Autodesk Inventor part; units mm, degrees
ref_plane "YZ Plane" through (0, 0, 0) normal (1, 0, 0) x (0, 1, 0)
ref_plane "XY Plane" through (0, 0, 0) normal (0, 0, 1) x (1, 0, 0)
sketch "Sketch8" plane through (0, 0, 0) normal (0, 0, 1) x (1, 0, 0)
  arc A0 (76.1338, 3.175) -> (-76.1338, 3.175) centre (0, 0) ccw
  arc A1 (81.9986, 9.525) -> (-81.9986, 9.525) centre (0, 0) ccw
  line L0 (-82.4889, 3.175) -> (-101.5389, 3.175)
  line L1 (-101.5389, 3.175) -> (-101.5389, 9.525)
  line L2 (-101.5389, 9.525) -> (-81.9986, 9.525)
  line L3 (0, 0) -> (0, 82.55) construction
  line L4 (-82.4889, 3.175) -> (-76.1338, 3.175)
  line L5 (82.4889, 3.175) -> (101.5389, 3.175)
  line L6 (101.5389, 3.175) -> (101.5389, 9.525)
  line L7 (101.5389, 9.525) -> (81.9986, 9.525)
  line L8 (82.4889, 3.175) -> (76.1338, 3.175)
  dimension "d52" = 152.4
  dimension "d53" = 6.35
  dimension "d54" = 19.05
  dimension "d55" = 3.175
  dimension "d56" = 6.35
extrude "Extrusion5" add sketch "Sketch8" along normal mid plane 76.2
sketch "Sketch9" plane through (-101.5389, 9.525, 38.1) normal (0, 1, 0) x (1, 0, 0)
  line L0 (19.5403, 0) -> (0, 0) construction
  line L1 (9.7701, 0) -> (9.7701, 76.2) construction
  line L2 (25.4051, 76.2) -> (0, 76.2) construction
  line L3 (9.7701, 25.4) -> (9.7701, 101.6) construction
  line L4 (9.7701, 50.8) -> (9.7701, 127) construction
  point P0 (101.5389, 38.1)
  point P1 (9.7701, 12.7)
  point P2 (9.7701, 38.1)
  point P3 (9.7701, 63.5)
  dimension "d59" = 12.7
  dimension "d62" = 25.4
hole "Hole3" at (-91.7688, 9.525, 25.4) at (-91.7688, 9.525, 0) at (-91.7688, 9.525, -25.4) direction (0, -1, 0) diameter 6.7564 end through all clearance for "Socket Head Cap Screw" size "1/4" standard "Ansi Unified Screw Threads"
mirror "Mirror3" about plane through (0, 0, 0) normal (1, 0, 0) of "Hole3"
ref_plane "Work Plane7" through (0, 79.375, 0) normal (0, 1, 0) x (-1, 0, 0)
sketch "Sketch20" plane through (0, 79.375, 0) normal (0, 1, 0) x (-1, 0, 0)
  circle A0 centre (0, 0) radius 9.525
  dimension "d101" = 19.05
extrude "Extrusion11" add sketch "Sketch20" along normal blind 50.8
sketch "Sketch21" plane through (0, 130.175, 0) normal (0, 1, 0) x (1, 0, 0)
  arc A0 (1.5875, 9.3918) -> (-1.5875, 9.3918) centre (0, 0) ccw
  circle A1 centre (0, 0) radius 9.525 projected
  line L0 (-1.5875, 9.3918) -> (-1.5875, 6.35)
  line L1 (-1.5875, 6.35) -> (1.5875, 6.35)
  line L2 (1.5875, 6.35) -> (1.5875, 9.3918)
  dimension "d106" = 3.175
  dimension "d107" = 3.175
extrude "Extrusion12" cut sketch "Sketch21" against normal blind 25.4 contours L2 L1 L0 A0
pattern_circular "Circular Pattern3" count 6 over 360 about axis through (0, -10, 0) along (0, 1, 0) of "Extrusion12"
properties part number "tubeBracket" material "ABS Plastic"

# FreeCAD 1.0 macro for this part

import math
import FreeCAD as App
import Part
import Sketcher

V = App.Vector
Q = App.Units.Quantity

doc = App.newDocument("Part")
body = doc.addObject("PartDesign::Body", "Body")

sketch1 = body.newObject("Sketcher::SketchObject", "Sketch")
sketch1.AttachmentSupport = (doc.getObject("XY_Plane"), [""])
sketch1.MapMode = "FlatFace"
sketch1.addGeometry([
    Part.ArcOfCircle(Part.Circle(V(0, 0, 0), V(0, 0, 1), 76), math.radians(2), math.radians(178)),
    Part.LineSegment(V(76, 3, 0), V(102, 3, 0)),
    Part.LineSegment(V(102, 3, 0), V(102, 10, 0)),
    Part.LineSegment(V(102, 10, 0), V(82, 10, 0)),
    Part.ArcOfCircle(Part.Circle(V(0, 0, 0), V(0, 0, 1), 83), math.radians(7), math.radians(173)),
    Part.LineSegment(V(-82, 10, 0), V(-102, 10, 0)),
    Part.LineSegment(V(-102, 10, 0), V(-102, 3, 0)),
    Part.LineSegment(V(-102, 3, 0), V(-76, 3, 0)),
], False)
sketch1.addConstraint([
    Sketcher.Constraint("Coincident", 0, 1, 1, 1),
    Sketcher.Constraint("Coincident", 1, 2, 2, 1),
    Sketcher.Constraint("Coincident", 2, 2, 3, 1),
    Sketcher.Constraint("Coincident", 3, 2, 4, 1),
    Sketcher.Constraint("Coincident", 4, 2, 5, 1),
    Sketcher.Constraint("Coincident", 5, 2, 6, 1),
    Sketcher.Constraint("Coincident", 6, 2, 7, 1),
    Sketcher.Constraint("Coincident", 7, 2, 0, 2),
    Sketcher.Constraint("Horizontal", 1),
    Sketcher.Constraint("Vertical", 2),
    Sketcher.Constraint("Horizontal", 3),
    Sketcher.Constraint("Horizontal", 5),
    Sketcher.Constraint("Vertical", 6),
    Sketcher.Constraint("Horizontal", 7),
    Sketcher.Constraint("Coincident", 0, 3, -1, 1),
    Sketcher.Constraint("Coincident", 4, 3, -1, 1),
    Sketcher.Constraint("Symmetric", 2, 2, 5, 2, -2),
    Sketcher.Constraint("Horizontal", 1, 2, 6, 2),
    Sketcher.Constraint("Radius", 0, Q("3 in")),
    Sketcher.Constraint("DistanceY", 2, 1, 2, 2, Q("0.25 in")),
    Sketcher.Constraint("Radius", 4, Q("3.25 in")),
    Sketcher.Constraint("DistanceY", -1, 1, 0, 1, Q("0.125 in")),
    Sketcher.Constraint("DistanceX", 1, 1, 1, 2, Q("1.0002 in")),
])
pad1 = body.newObject("PartDesign::Pad", "Pad")
pad1.Profile = sketch1
pad1.Length = Q("3 in")
pad1.Midplane = True

sketch2 = body.newObject("Sketcher::SketchObject", "Sketch001")
sketch2.AttachmentSupport = (doc.getObject("XZ_Plane"), [""])
sketch2.MapMode = "FlatFace"
sketch2.AttachmentOffset = App.Placement(V(0, 0, -0.375 * 25.4), App.Rotation())
sketch2.addGeometry([
    Part.Circle(V(-91.8, 25.4, 0), V(0, 0, 1), 3.4),
    Part.Circle(V(-91.8, 0, 0), V(0, 0, 1), 3.4),
    Part.Circle(V(-91.8, -25.4, 0), V(0, 0, 1), 3.4),
], False)
sketch2.addConstraint([
    Sketcher.Constraint("Equal", 0, 1),
    Sketcher.Constraint("Equal", 1, 2),
    Sketcher.Constraint("Symmetric", 0, 3, 2, 3, -1),
    Sketcher.Constraint("PointOnObject", 1, 3, -1),
    Sketcher.Constraint("Vertical", 0, 3, 1, 3),
    Sketcher.Constraint("Diameter", 0, Q("0.266 in")),
    Sketcher.Constraint("DistanceY", -1, 1, 0, 3, Q("1 in")),
    Sketcher.Constraint("DistanceX", 0, 3, -1, 1, Q("91.7688 mm")),
])
doc.recompute()
hole = body.newObject("PartDesign::Hole", "Hole")
hole.Profile = sketch2
hole.ThreadType = "None"
hole.Diameter = Q("0.266 in")
hole.DepthType = "ThroughAll"
hole.Reversed = True
doc.recompute()

mirrored = body.newObject("PartDesign::Mirrored", "Mirrored")
mirrored.Originals = [hole]
mirrored.MirrorPlane = (doc.getObject("YZ_Plane"), [""])
body.Tip = mirrored

sketch3 = body.newObject("Sketcher::SketchObject", "Sketch002")
sketch3.AttachmentSupport = (doc.getObject("XZ_Plane"), [""])
sketch3.MapMode = "FlatFace"
sketch3.AttachmentOffset = App.Placement(V(0, 0, -3.125 * 25.4), App.Rotation())
sketch3.addGeometry(Part.Circle(V(0, 0, 0), V(0, 0, 1), 10), False)
sketch3.addConstraint([
    Sketcher.Constraint("Coincident", 0, 3, -1, 1),
    Sketcher.Constraint("Diameter", 0, Q("0.75 in")),
])
pad2 = body.newObject("PartDesign::Pad", "Pad001")
pad2.Profile = sketch3
pad2.Length = Q("2 in")
pad2.Reversed = True

sketch4 = body.newObject("Sketcher::SketchObject", "Sketch003")
sketch4.AttachmentSupport = (doc.getObject("XZ_Plane"), [""])
sketch4.MapMode = "FlatFace"
sketch4.AttachmentOffset = App.Placement(V(0, 0, -5.125 * 25.4), App.Rotation())
sketch4.addGeometry([
    Part.LineSegment(V(1.6, -6.3, 0), V(1.6, -9.4, 0)),
    Part.ArcOfCircle(Part.Circle(V(0, 0, 0), V(0, 0, 1), 9.5), math.radians(-99.59), math.radians(-80.41)),
    Part.LineSegment(V(-1.6, -9.4, 0), V(-1.6, -6.3, 0)),
    Part.LineSegment(V(-1.6, -6.3, 0), V(1.6, -6.3, 0)),
], False)
sketch4.addConstraint([
    Sketcher.Constraint("Coincident", 0, 2, 1, 2),
    Sketcher.Constraint("Coincident", 1, 1, 2, 1),
    Sketcher.Constraint("Coincident", 2, 2, 3, 1),
    Sketcher.Constraint("Coincident", 3, 2, 0, 1),
    Sketcher.Constraint("Vertical", 0),
    Sketcher.Constraint("Vertical", 2),
    Sketcher.Constraint("Horizontal", 3),
    Sketcher.Constraint("Coincident", 1, 3, -1, 1),
    Sketcher.Constraint("Horizontal", 0, 2, 1, 1),
    Sketcher.Constraint("DistanceX", 3, 1, 3, 2, Q("0.125 in")),
    Sketcher.Constraint("Radius", 1, Q("0.375 in")),
    Sketcher.Constraint("DistanceY", 2, 2, -1, 1, Q("0.25 in")),
])
pocket1 = body.newObject("PartDesign::Pocket", "Pocket")
pocket1.Profile = sketch4
pocket1.Length = Q("1 in")
pocket1.Reversed = True
doc.recompute()

polarpattern = body.newObject("PartDesign::PolarPattern", "PolarPattern")
polarpattern.Originals = [pocket1]
polarpattern.Axis = (doc.getObject("Y_Axis"), [""])
polarpattern.Angle = 360
polarpattern.Occurrences = 6
body.Tip = polarpattern

doc.recompute()
